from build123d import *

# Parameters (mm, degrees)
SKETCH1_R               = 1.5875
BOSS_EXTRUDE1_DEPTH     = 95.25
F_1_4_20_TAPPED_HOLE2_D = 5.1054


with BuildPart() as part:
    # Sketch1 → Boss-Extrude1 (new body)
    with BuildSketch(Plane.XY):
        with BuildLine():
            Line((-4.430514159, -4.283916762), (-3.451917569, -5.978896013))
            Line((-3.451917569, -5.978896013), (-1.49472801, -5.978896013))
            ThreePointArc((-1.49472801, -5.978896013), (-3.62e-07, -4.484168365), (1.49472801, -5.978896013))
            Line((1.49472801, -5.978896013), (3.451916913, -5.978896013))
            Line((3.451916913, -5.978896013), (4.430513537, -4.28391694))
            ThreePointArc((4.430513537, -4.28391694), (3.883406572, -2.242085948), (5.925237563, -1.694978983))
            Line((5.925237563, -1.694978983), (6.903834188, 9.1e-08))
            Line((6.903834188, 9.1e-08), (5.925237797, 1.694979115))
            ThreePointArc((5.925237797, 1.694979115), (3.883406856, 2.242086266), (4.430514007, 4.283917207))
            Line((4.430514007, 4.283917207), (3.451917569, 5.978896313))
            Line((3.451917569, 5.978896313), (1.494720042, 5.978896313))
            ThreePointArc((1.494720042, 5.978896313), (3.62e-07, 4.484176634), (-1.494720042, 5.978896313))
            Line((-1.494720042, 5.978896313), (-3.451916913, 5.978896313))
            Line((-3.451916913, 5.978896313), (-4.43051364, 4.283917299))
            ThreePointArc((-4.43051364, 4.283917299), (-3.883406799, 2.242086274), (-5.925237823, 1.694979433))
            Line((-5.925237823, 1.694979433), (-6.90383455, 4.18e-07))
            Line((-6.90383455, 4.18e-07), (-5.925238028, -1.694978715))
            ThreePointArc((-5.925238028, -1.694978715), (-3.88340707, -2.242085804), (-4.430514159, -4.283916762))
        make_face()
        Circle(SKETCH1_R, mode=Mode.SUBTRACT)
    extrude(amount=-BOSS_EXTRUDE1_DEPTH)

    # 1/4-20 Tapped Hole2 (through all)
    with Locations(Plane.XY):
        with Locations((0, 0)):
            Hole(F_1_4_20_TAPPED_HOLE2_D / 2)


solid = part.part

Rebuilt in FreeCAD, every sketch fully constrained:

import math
import FreeCAD as App
import Part
import Sketcher
Q = App.Units.Quantity

doc = App.newDocument("Part")
params = doc.addObject("Spreadsheet::Sheet", "Params")
for row, (alias, value) in enumerate([
    ("sketch1_diameter", "0.125 in"),
    ("pad1_length", "3.75 in"),
    ("sketch2_diameter", "0.201 in"),
    ("hole_diameter", "0.201 in"),
], start=1):
    params.set(f"A{row}", alias)
    params.set(f"B{row}", "=" + value)
    params.setAlias(f"B{row}", alias)

body = doc.addObject("PartDesign::Body", "Body")

# Sketch on XY plane
sketch1 = doc.addObject("Sketcher::SketchObject", "Sketch")
body.addObject(sketch1)
sketch1.AttachmentSupport = (doc.XY_Plane, [""])
sketch1.MapMode = "FlatFace"
sketch1.addGeometry(Part.LineSegment(App.Vector(-4.4, -4.3, 0), App.Vector(-3.5, -6, 0)), False)
sketch1.addGeometry(Part.LineSegment(App.Vector(-3.5, -6, 0), App.Vector(-1.5, -6, 0)), False)
sketch1.addGeometry(Part.ArcOfCircle(Part.Circle(App.Vector(0, -6, 0), App.Vector(0, 0, 1), 1.5), math.radians(0), math.radians(180)), False)
sketch1.addGeometry(Part.LineSegment(App.Vector(1.5, -6, 0), App.Vector(3.5, -6, 0)), False)
sketch1.addGeometry(Part.LineSegment(App.Vector(3.5, -6, 0), App.Vector(4.4, -4.3, 0)), False)
sketch1.addGeometry(Part.ArcOfCircle(Part.Circle(App.Vector(5.2, -3, 0), App.Vector(0, 0, 1), 1.5), math.radians(60), math.radians(240)), False)
sketch1.addGeometry(Part.LineSegment(App.Vector(5.9, -1.7, 0), App.Vector(6.9, 0, 0)), False)
sketch1.addGeometry(Part.LineSegment(App.Vector(6.9, 0, 0), App.Vector(5.9, 1.7, 0)), False)
sketch1.addGeometry(Part.ArcOfCircle(Part.Circle(App.Vector(5.2, 3, 0), App.Vector(0, 0, 1), 1.5), math.radians(120), math.radians(300)), False)
sketch1.addGeometry(Part.LineSegment(App.Vector(4.4, 4.3, 0), App.Vector(3.5, 6, 0)), False)
sketch1.addGeometry(Part.LineSegment(App.Vector(3.5, 6, 0), App.Vector(1.5, 6, 0)), False)
sketch1.addGeometry(Part.ArcOfCircle(Part.Circle(App.Vector(0, 6, 0), App.Vector(0, 0, 1), 1.5), math.radians(-180), math.radians(0)), False)
sketch1.addGeometry(Part.LineSegment(App.Vector(-1.5, 6, 0), App.Vector(-3.5, 6, 0)), False)
sketch1.addGeometry(Part.LineSegment(App.Vector(-3.5, 6, 0), App.Vector(-4.4, 4.3, 0)), False)
sketch1.addGeometry(Part.ArcOfCircle(Part.Circle(App.Vector(-5.2, 3, 0), App.Vector(0, 0, 1), 1.5), math.radians(-120), math.radians(60)), False)
sketch1.addGeometry(Part.LineSegment(App.Vector(-5.9, 1.7, 0), App.Vector(-6.9, 0, 0)), False)
sketch1.addGeometry(Part.LineSegment(App.Vector(-6.9, 0, 0), App.Vector(-5.9, -1.7, 0)), False)
sketch1.addGeometry(Part.ArcOfCircle(Part.Circle(App.Vector(-5.2, -3, 0), App.Vector(0, 0, 1), 1.5), math.radians(-60), math.radians(120)), False)
sketch1.addGeometry(Part.Circle(App.Vector(0, 0, 0), App.Vector(0, 0, 1), 1.6), False)
sketch1.addConstraint(Sketcher.Constraint("Coincident", 0, 2, 1, 1))
sketch1.addConstraint(Sketcher.Constraint("Coincident", 1, 2, 2, 2))
sketch1.addConstraint(Sketcher.Constraint("Coincident", 2, 1, 3, 1))
sketch1.addConstraint(Sketcher.Constraint("Coincident", 3, 2, 4, 1))
sketch1.addConstraint(Sketcher.Constraint("Coincident", 4, 2, 5, 2))
sketch1.addConstraint(Sketcher.Constraint("Coincident", 5, 1, 6, 1))
sketch1.addConstraint(Sketcher.Constraint("Coincident", 6, 2, 7, 1))
sketch1.addConstraint(Sketcher.Constraint("Coincident", 7, 2, 8, 2))
sketch1.addConstraint(Sketcher.Constraint("Coincident", 8, 1, 9, 1))
sketch1.addConstraint(Sketcher.Constraint("Coincident", 9, 2, 10, 1))
sketch1.addConstraint(Sketcher.Constraint("Coincident", 10, 2, 11, 2))
sketch1.addConstraint(Sketcher.Constraint("Coincident", 11, 1, 12, 1))
sketch1.addConstraint(Sketcher.Constraint("Coincident", 12, 2, 13, 1))
sketch1.addConstraint(Sketcher.Constraint("Coincident", 13, 2, 14, 2))
sketch1.addConstraint(Sketcher.Constraint("Coincident", 14, 1, 15, 1))
sketch1.addConstraint(Sketcher.Constraint("Coincident", 15, 2, 16, 1))
sketch1.addConstraint(Sketcher.Constraint("Coincident", 16, 2, 17, 2))
sketch1.addConstraint(Sketcher.Constraint("Coincident", 17, 1, 0, 1))
sketch1.addConstraint(Sketcher.Constraint("Horizontal", 1))
sketch1.addConstraint(Sketcher.Constraint("Horizontal", 3))
sketch1.addConstraint(Sketcher.Constraint("Horizontal", 10))
sketch1.addConstraint(Sketcher.Constraint("Horizontal", 12))
sketch1.addConstraint(Sketcher.Constraint("Coincident", 18, 3, -1, 1))
sketch1.addConstraint(Sketcher.Constraint("Equal", 5, 8))
sketch1.addConstraint(Sketcher.Constraint("Equal", 8, 14))
sketch1.addConstraint(Sketcher.Constraint("Equal", 14, 17))
sketch1.addConstraint(Sketcher.Constraint("Symmetric", 2, 3, 11, 3, -1, 1))
sketch1.addConstraint(Sketcher.Constraint("Symmetric", 5, 3, 14, 3, -1, 1))
sketch1.addConstraint(Sketcher.Constraint("Symmetric", 8, 3, 17, 3, -1, 1))
sketch1.addConstraint(Sketcher.Constraint("Symmetric", 0, 2, 9, 2, -1, 1))
sketch1.addConstraint(Sketcher.Constraint("Symmetric", 2, 1, 11, 1, -1, 1))
sketch1.addConstraint(Sketcher.Constraint("Symmetric", 6, 2, 15, 2, -1, 1))
sketch1.addConstraint(Sketcher.Constraint("Symmetric", 8, 3, 14, 3, -2))
sketch1.addConstraint(Sketcher.Constraint("Symmetric", 1, 2, 2, 1, -2))
sketch1.addConstraint(Sketcher.Constraint("PointOnObject", 6, 2, -1))
sketch1.addConstraint(Sketcher.Constraint("Parallel", 4, 6))
sketch1.addConstraint(Sketcher.Constraint("Parallel", 0, 7))
sketch1.addConstraint(Sketcher.Constraint("Parallel", 7, 9))
sketch1.addConstraint(Sketcher.Constraint("Parallel", 6, 13))
sketch1.addConstraint(Sketcher.Constraint("Parallel", 13, 15))
sketch1.addConstraint(Sketcher.Constraint("Parallel", 9, 16))
sketch1.addConstraint(Sketcher.Constraint("Horizontal", 2, 3, 0, 2))
sketch1.addConstraint(Sketcher.Constraint("Horizontal", 8, 1, 13, 2))
sketch1.addConstraint(Sketcher.Constraint("Horizontal", 7, 2, 14, 1))
sketch1.addConstraint(Sketcher.Constraint("Horizontal", 4, 2, 17, 1))
sketch1.addConstraint(Sketcher.Constraint("Equal", 4, 6))
sketch1.addConstraint(Sketcher.Constraint("Diameter", 18, Q("0.125 in")))
sketch1.addConstraint(Sketcher.Constraint("Angle", 0, Q("-60.000003 deg")))
sketch1.addConstraint(Sketcher.Constraint("Radius", 2, Q("1.494728 mm")))
sketch1.addConstraint(Sketcher.Constraint("Radius", 5, Q("1.494724 mm")))
sketch1.addConstraint(Sketcher.Constraint("DistanceX", 1, 1, 1, 2, Q("1.95719 mm")))
sketch1.addConstraint(Sketcher.Constraint("DistanceY", -1, 1, 8, 3, Q("2.989448 mm")))
sketch1.addConstraint(Sketcher.Constraint("DistanceY", 5, 1, -1, 1, Q("1.694979 mm")))
sketch1.addConstraint(Sketcher.Constraint("DistanceX", 16, 2, -1, 1, Q("5.925238 mm")))
sketch1.setExpression("Constraints[46]", "Params.sketch1_diameter")
pad1 = doc.addObject("PartDesign::Pad", "Pad")
body.addObject(pad1)
pad1.Profile = sketch1
pad1.setExpression("Length", "Params.pad1_length")
pad1.Reversed = True

# Sketch on XY plane
sketch2 = doc.addObject("Sketcher::SketchObject", "Sketch001")
body.addObject(sketch2)
sketch2.AttachmentSupport = (doc.XY_Plane, [""])
sketch2.MapMode = "FlatFace"
sketch2.addGeometry(Part.Circle(App.Vector(0, 0, 0), App.Vector(0, 0, 1), 2.6), False)
sketch2.addConstraint(Sketcher.Constraint("Coincident", 0, 3, -1, 1))
sketch2.addConstraint(Sketcher.Constraint("Diameter", 0, Q("0.201 in")))
sketch2.setExpression("Constraints[1]", "Params.sketch2_diameter")
doc.recompute()
hole = doc.addObject("PartDesign::Hole", "Hole")
body.addObject(hole)
hole.Profile = sketch2
hole.ThreadType = "None"
hole.setExpression("Diameter", "Params.hole_diameter")
hole.DepthType = "ThroughAll"

doc.recompute()
